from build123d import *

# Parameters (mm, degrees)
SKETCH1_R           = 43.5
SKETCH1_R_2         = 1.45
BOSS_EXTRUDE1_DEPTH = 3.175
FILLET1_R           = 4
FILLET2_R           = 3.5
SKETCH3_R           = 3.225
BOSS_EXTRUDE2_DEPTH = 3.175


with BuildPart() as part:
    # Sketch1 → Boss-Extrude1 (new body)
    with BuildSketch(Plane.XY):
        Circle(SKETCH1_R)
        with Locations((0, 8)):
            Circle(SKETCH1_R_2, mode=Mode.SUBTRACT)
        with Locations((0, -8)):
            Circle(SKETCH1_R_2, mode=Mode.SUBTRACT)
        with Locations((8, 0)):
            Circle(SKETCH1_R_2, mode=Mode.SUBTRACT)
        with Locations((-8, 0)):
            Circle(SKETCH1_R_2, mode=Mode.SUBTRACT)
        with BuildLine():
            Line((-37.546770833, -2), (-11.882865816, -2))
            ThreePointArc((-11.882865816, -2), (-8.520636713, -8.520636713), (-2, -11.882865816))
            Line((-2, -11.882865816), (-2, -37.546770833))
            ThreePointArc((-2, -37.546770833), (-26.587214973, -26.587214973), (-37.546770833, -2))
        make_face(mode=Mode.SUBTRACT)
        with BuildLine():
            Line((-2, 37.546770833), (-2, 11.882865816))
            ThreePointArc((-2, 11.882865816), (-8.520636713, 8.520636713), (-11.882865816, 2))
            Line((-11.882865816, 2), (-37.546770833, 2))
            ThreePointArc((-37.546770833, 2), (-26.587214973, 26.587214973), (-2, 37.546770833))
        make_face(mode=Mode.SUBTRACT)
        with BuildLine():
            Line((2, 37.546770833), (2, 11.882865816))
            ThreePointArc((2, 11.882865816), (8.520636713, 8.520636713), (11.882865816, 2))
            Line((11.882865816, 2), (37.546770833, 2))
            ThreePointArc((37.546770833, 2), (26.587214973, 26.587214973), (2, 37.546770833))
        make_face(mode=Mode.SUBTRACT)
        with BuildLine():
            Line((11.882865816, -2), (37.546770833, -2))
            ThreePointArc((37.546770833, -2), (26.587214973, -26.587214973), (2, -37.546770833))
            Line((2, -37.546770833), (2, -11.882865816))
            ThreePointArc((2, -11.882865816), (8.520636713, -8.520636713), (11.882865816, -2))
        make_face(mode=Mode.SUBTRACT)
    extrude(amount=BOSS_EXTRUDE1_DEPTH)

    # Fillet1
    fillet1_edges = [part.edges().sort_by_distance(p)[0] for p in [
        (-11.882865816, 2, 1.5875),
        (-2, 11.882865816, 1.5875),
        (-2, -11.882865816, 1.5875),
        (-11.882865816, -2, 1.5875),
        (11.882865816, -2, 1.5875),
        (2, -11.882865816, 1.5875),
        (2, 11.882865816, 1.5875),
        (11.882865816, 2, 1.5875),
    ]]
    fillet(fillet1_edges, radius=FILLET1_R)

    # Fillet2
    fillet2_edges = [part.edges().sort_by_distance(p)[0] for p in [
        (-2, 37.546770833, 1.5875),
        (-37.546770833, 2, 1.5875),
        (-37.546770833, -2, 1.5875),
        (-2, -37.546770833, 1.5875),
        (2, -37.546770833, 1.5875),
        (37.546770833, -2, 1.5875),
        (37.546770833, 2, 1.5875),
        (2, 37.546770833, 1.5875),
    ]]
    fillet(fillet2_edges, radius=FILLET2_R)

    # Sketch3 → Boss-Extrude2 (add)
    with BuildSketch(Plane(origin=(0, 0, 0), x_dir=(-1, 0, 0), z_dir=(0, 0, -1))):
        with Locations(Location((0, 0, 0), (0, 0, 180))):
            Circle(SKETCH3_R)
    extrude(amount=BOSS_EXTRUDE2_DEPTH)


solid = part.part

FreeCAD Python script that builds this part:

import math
import FreeCAD as App
import Part
import Sketcher

V = App.Vector


def edges_at(feature, points):
    """Names of the edges that pass closest to the given points."""
    edges = feature.Shape.Edges
    near = lambda p: min(range(len(edges)), key=lambda i: edges[i].distToShape(Part.Vertex(*p))[0])
    return sorted({f"Edge{near(p) + 1}" for p in points})

doc = App.newDocument("Part")
body = doc.addObject("PartDesign::Body", "Body")

# Sketch on XY plane
sketch1 = body.newObject("Sketcher::SketchObject", "Sketch")
sketch1.AttachmentSupport = (doc.getObject("XY_Plane"), [""])
sketch1.MapMode = "FlatFace"
sketch1.addGeometry([
    Part.Circle(V(0, 0, 0), V(0, 0, 1), 43.5),  # 0
    Part.ArcOfCircle(Part.Circle(V(0, 0, 0), V(0, 0, 1), 37.6), math.radians(-177), math.radians(-93)),  # 1
    Part.LineSegment(V(-37.5, -2, 0), V(-11.9, -2, 0)),  # 2
    Part.ArcOfCircle(Part.Circle(V(0, 0, 0), V(0, 0, 1), 12.1), math.radians(-170), math.radians(-100)),  # 3
    Part.LineSegment(V(-2, -11.9, 0), V(-2, -37.5, 0)),  # 4
    Part.ArcOfCircle(Part.Circle(V(0, 0, 0), V(0, 0, 1), 12.1), math.radians(-80), math.radians(-10)),  # 5
    Part.LineSegment(V(11.9, -2, 0), V(37.5, -2, 0)),  # 6
    Part.ArcOfCircle(Part.Circle(V(0, 0, 0), V(0, 0, 1), 37.6), math.radians(-87), math.radians(-3)),  # 7
    Part.LineSegment(V(2, -37.5, 0), V(2, -11.9, 0)),  # 8
    Part.Circle(V(0, -8, 0), V(0, 0, 1), 1.4),  # 9
    Part.Circle(V(-8, 0, 0), V(0, 0, 1), 1.4),  # 10
    Part.ArcOfCircle(Part.Circle(V(0, 0, 0), V(0, 0, 1), 37.6), math.radians(93), math.radians(177)),  # 11
    Part.LineSegment(V(-2, 37.5, 0), V(-2, 11.9, 0)),  # 12
    Part.ArcOfCircle(Part.Circle(V(0, 0, 0), V(0, 0, 1), 12.1), math.radians(100), math.radians(170)),  # 13
    Part.LineSegment(V(-11.9, 2, 0), V(-37.5, 2, 0)),  # 14
    Part.Circle(V(8, 0, 0), V(0, 0, 1), 1.4),  # 15
    Part.Circle(V(0, 8, 0), V(0, 0, 1), 1.4),  # 16
    Part.LineSegment(V(2, 11.9, 0), V(2, 37.5, 0)),  # 17
    Part.ArcOfCircle(Part.Circle(V(0, 0, 0), V(0, 0, 1), 37.6), math.radians(3), math.radians(87)),  # 18
    Part.LineSegment(V(37.5, 2, 0), V(11.9, 2, 0)),  # 19
    Part.ArcOfCircle(Part.Circle(V(0, 0, 0), V(0, 0, 1), 12.1), math.radians(10), math.radians(80)),  # 20
], False)
sketch1.addConstraint([
    Sketcher.Constraint("Coincident", 1, 1, 2, 1),
    Sketcher.Constraint("Coincident", 2, 2, 3, 1),
    Sketcher.Constraint("Coincident", 3, 2, 4, 1),
    Sketcher.Constraint("Coincident", 4, 2, 1, 2),
    Sketcher.Constraint("Coincident", 5, 2, 6, 1),
    Sketcher.Constraint("Coincident", 6, 2, 7, 2),
    Sketcher.Constraint("Coincident", 7, 1, 8, 1),
    Sketcher.Constraint("Coincident", 8, 2, 5, 1),
    Sketcher.Constraint("Coincident", 11, 1, 12, 1),
    Sketcher.Constraint("Coincident", 12, 2, 13, 1),
    Sketcher.Constraint("Coincident", 13, 2, 14, 1),
    Sketcher.Constraint("Coincident", 14, 2, 11, 2),
    Sketcher.Constraint("Coincident", 17, 2, 18, 2),
    Sketcher.Constraint("Coincident", 18, 1, 19, 1),
    Sketcher.Constraint("Coincident", 19, 2, 20, 1),
    Sketcher.Constraint("Coincident", 20, 2, 17, 1),
    Sketcher.Constraint("Horizontal", 2),
    Sketcher.Constraint("Vertical", 4),
    Sketcher.Constraint("Horizontal", 6),
    Sketcher.Constraint("Vertical", 8),
    Sketcher.Constraint("Vertical", 12),
    Sketcher.Constraint("Horizontal", 14),
    Sketcher.Constraint("Vertical", 17),
    Sketcher.Constraint("Horizontal", 19),
    Sketcher.Constraint("Coincident", 0, 3, -1, 1),
    Sketcher.Constraint("Coincident", 1, 3, -1, 1),
    Sketcher.Constraint("Coincident", 3, 3, -1, 1),
    Sketcher.Constraint("Coincident", 5, 3, -1, 1),
    Sketcher.Constraint("Coincident", 7, 3, -1, 1),
    Sketcher.Constraint("Coincident", 11, 3, -1, 1),
    Sketcher.Constraint("Coincident", 13, 3, -1, 1),
    Sketcher.Constraint("Coincident", 18, 3, -1, 1),
    Sketcher.Constraint("Coincident", 20, 3, -1, 1),
    Sketcher.Constraint("Equal", 3, 5),
    Sketcher.Constraint("Equal", 1, 7),
    Sketcher.Constraint("Equal", 9, 10),
    Sketcher.Constraint("Equal", 7, 11),
    Sketcher.Constraint("Equal", 5, 13),
    Sketcher.Constraint("Equal", 10, 15),
    Sketcher.Constraint("Equal", 15, 16),
    Sketcher.Constraint("Equal", 11, 18),
    Sketcher.Constraint("Equal", 13, 20),
    Sketcher.Constraint("Symmetric", 10, 3, 15, 3, -1, 1),
    Sketcher.Constraint("Symmetric", 9, 3, 16, 3, -1, 1),
    Sketcher.Constraint("PointOnObject", 9, 3, -2),
    Sketcher.Constraint("PointOnObject", 10, 3, -1),
    Sketcher.Constraint("Horizontal", 2, 2, 5, 2),
    Sketcher.Constraint("Horizontal", 4, 2, 7, 1),
    Sketcher.Constraint("Horizontal", 11, 1, 17, 2),
    Sketcher.Constraint("Horizontal", 14, 2, 18, 1),
    Sketcher.Constraint("Vertical", 4, 2, 11, 1),
    Sketcher.Constraint("Vertical", 2, 2, 13, 2),
    Sketcher.Constraint("Equal", 19, 4),
    Sketcher.Constraint("Diameter", 0, 87.0),
    Sketcher.Constraint("Diameter", 9, 2.9),
    Sketcher.Constraint("Radius", 1, 37.6),
    Sketcher.Constraint("Radius", 3, 12.05),
    Sketcher.Constraint("DistanceY", 9, 3, -1, 1, 8.0),
    Sketcher.Constraint("DistanceX", 10, 3, -1, 1, 8.0),
    Sketcher.Constraint("DistanceY", 1, 1, -1, 1, 2.0),
])
pad1 = body.newObject("PartDesign::Pad", "Pad")
pad1.Profile = sketch1
pad1.Length = 3.175
doc.recompute()

fillet = body.newObject("PartDesign::Fillet", "Fillet")
fillet.Base = (pad1, edges_at(pad1, [
    (-11.883, 2, 1.587),
    (-2, 11.883, 1.587),
    (-2, -11.883, 1.587),
    (-11.883, -2, 1.587),
    (11.883, -2, 1.587),
    (2, -11.883, 1.587),
    (2, 11.883, 1.587),
    (11.883, 2, 1.587),
]))
fillet.Radius = 4
doc.recompute()

fillet2 = body.newObject("PartDesign::Fillet", "Fillet001")
fillet2.Base = (fillet, edges_at(fillet, [
    (-2, 37.547, 1.587),
    (-37.547, 2, 1.587),
    (-37.547, -2, 1.587),
    (-2, -37.547, 1.587),
    (2, -37.547, 1.587),
    (37.547, -2, 1.587),
    (37.547, 2, 1.587),
    (2, 37.547, 1.587),
]))
fillet2.Radius = 3.5

# Sketch on XY plane
sketch2 = body.newObject("Sketcher::SketchObject", "Sketch001")
sketch2.AttachmentSupport = (doc.getObject("XY_Plane"), [""])
sketch2.MapMode = "FlatFace"
sketch2.addGeometry(Part.Circle(V(0, 0, 0), V(0, 0, 1), 3.2), False)
sketch2.addConstraint([
    Sketcher.Constraint("Coincident", 0, 3, -1, 1),
    Sketcher.Constraint("Diameter", 0, 6.45),
])
pad2 = body.newObject("PartDesign::Pad", "Pad001")
pad2.Profile = sketch2
pad2.Length = 3.175
pad2.Reversed = True

doc.recompute()
